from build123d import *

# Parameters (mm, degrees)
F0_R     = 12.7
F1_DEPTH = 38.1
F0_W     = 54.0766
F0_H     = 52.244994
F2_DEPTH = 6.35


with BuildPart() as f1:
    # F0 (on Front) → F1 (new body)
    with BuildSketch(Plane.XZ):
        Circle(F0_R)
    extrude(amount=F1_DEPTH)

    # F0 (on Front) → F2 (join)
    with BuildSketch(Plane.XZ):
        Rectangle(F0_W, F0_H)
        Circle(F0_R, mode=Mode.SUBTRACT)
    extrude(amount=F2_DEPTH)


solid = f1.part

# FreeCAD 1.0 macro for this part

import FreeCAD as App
import Part
import Sketcher
Q = App.Units.Quantity


def add_polygon(sketch, points):
    """Adds a closed chain of lines whose ends are joined by coincident constraints."""
    first, n = sketch.GeometryCount, len(points)
    for a, b in zip(points, points[1:] + points[:1]):
        sketch.addGeometry(Part.LineSegment(App.Vector(*a, 0), App.Vector(*b, 0)), False)
    for i in range(n):
        sketch.addConstraint(Sketcher.Constraint("Coincident", first + i, 2, first + (i + 1) % n, 1))

doc = App.newDocument("Part")
body = doc.addObject("PartDesign::Body", "Body")

sketch1 = body.newObject("Sketcher::SketchObject", "Sketch")
sketch1.AttachmentSupport = (doc.getObject("XZ_Plane"), [""])
sketch1.MapMode = "FlatFace"
sketch1.addGeometry(Part.Circle(App.Vector(0, 0, 0), App.Vector(0, 0, 1), 13), False)
sketch1.addConstraint([
    Sketcher.Constraint("Coincident", 0, 3, -1, 1),
    Sketcher.Constraint("Diameter", 0, Q("1 in")),
])
pad1 = body.newObject("PartDesign::Pad", "Pad")
pad1.Profile = sketch1
pad1.Length = Q("1.5 in")

sketch2 = body.newObject("Sketcher::SketchObject", "Sketch001")
sketch2.AttachmentSupport = (doc.getObject("XZ_Plane"), [""])
sketch2.MapMode = "FlatFace"
add_polygon(sketch2, [(-27, 26), (-27, -26), (27, -26), (27, 26)])
sketch2.addGeometry(Part.Circle(App.Vector(0, 0, 0), App.Vector(0, 0, 1), 13), False)
sketch2.addConstraint([
    Sketcher.Constraint("Vertical", 0),
    Sketcher.Constraint("Horizontal", 1),
    Sketcher.Constraint("Vertical", 2),
    Sketcher.Constraint("Horizontal", 3),
    Sketcher.Constraint("Coincident", 4, 3, -1, 1),
    Sketcher.Constraint("Symmetric", 0, 2, 2, 2, -1, 1),
    Sketcher.Constraint("Diameter", 4, Q("1 in")),
    Sketcher.Constraint("DistanceX", 1, 1, 1, 2, Q("2.129 in")),
    Sketcher.Constraint("DistanceY", 0, 2, 0, 1, 52.244994),
])
pad2 = body.newObject("PartDesign::Pad", "Pad001")
pad2.Profile = sketch2
pad2.Length = Q("0.25 in")

doc.recompute()
